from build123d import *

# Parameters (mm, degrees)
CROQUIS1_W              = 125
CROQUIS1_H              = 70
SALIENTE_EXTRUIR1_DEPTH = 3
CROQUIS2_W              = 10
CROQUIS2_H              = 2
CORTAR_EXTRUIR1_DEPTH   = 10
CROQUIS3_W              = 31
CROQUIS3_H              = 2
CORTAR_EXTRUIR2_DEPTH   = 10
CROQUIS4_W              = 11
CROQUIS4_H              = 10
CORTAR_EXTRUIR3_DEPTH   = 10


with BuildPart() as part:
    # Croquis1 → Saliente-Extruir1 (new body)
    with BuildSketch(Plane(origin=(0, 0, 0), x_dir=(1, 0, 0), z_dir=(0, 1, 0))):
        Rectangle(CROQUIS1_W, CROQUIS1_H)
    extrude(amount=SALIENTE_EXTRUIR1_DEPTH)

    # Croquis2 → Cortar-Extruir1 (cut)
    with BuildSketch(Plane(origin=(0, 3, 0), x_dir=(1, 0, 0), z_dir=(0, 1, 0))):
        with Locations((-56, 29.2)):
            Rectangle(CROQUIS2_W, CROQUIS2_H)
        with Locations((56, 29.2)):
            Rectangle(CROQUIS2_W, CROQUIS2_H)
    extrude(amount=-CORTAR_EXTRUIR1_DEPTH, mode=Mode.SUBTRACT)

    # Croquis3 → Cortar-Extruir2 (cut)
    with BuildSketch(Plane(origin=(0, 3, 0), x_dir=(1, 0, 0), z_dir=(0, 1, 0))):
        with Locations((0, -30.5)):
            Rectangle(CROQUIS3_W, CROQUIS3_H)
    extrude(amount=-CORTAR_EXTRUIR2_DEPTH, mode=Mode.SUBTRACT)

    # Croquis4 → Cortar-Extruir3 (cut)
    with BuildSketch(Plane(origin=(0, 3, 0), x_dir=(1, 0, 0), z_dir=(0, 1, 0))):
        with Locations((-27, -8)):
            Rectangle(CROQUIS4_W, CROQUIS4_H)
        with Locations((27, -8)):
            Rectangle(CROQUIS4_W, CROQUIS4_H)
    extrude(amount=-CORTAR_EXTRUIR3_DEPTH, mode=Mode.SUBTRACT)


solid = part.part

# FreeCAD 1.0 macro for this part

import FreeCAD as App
import Part
import Sketcher
Q = App.Units.Quantity

doc = App.newDocument("Part")
body = doc.addObject("PartDesign::Body", "Body")

sketch1 = body.newObject("Sketcher::SketchObject", "Sketch")
sketch1.AttachmentSupport = (doc.getObject("XZ_Plane"), [""])
sketch1.MapMode = "FlatFace"
sketch1.addGeometry([
    Part.LineSegment(App.Vector(-62, -35, 0), App.Vector(-62, 35, 0)),
    Part.LineSegment(App.Vector(-62, 35, 0), App.Vector(62, 35, 0)),
    Part.LineSegment(App.Vector(62, 35, 0), App.Vector(62, -35, 0)),
    Part.LineSegment(App.Vector(62, -35, 0), App.Vector(-62, -35, 0)),
], False)
sketch1.addConstraint([
    Sketcher.Constraint("Coincident", 0, 2, 1, 1),
    Sketcher.Constraint("Coincident", 1, 2, 2, 1),
    Sketcher.Constraint("Coincident", 2, 2, 3, 1),
    Sketcher.Constraint("Coincident", 3, 2, 0, 1),
    Sketcher.Constraint("Vertical", 0),
    Sketcher.Constraint("Horizontal", 1),
    Sketcher.Constraint("Vertical", 2),
    Sketcher.Constraint("Horizontal", 3),
    Sketcher.Constraint("Symmetric", 0, 2, 2, 2, -1, 1),
    Sketcher.Constraint("DistanceX", 1, 1, 1, 2, Q("125 mm")),
    Sketcher.Constraint("DistanceY", 0, 1, 0, 2, Q("70 mm")),
])
pad1 = body.newObject("PartDesign::Pad", "Pad")
pad1.Profile = sketch1
pad1.Length = 3
pad1.Reversed = True

sketch2 = body.newObject("Sketcher::SketchObject", "Sketch001")
sketch2.AttachmentSupport = (doc.getObject("XZ_Plane"), [""])
sketch2.MapMode = "FlatFace"
sketch2.AttachmentOffset = App.Placement(App.Vector(0, 0, -3), App.Rotation())
sketch2.addGeometry([
    Part.LineSegment(App.Vector(-61, -30.2, 0), App.Vector(-61, -28.2, 0)),
    Part.LineSegment(App.Vector(-61, -28.2, 0), App.Vector(-51, -28.2, 0)),
    Part.LineSegment(App.Vector(-51, -28.2, 0), App.Vector(-51, -30.2, 0)),
    Part.LineSegment(App.Vector(-51, -30.2, 0), App.Vector(-61, -30.2, 0)),
    Part.LineSegment(App.Vector(51, -30.2, 0), App.Vector(51, -28.2, 0)),
    Part.LineSegment(App.Vector(51, -28.2, 0), App.Vector(61, -28.2, 0)),
    Part.LineSegment(App.Vector(61, -28.2, 0), App.Vector(61, -30.2, 0)),
    Part.LineSegment(App.Vector(61, -30.2, 0), App.Vector(51, -30.2, 0)),
], False)
sketch2.addConstraint([
    Sketcher.Constraint("Coincident", 0, 2, 1, 1),
    Sketcher.Constraint("Coincident", 1, 2, 2, 1),
    Sketcher.Constraint("Coincident", 2, 2, 3, 1),
    Sketcher.Constraint("Coincident", 3, 2, 0, 1),
    Sketcher.Constraint("Coincident", 4, 2, 5, 1),
    Sketcher.Constraint("Coincident", 5, 2, 6, 1),
    Sketcher.Constraint("Coincident", 6, 2, 7, 1),
    Sketcher.Constraint("Coincident", 7, 2, 4, 1),
    Sketcher.Constraint("Vertical", 0),
    Sketcher.Constraint("Horizontal", 1),
    Sketcher.Constraint("Vertical", 2),
    Sketcher.Constraint("Horizontal", 3),
    Sketcher.Constraint("Vertical", 4),
    Sketcher.Constraint("Horizontal", 5),
    Sketcher.Constraint("Vertical", 6),
    Sketcher.Constraint("Horizontal", 7),
    Sketcher.Constraint("Symmetric", 1, 2, 4, 2, -2),
    Sketcher.Constraint("Symmetric", 3, 2, 6, 2, -2),
    Sketcher.Constraint("DistanceX", 1, 1, 1, 2, Q("10 mm")),
    Sketcher.Constraint("DistanceY", 0, 1, 0, 2, Q("2 mm")),
    Sketcher.Constraint("DistanceX", 0, 2, -1, 1, Q("61 mm")),
    Sketcher.Constraint("DistanceY", 0, 2, -1, 1, Q("28.2 mm")),
])
pocket1 = body.newObject("PartDesign::Pocket", "Pocket")
pocket1.Profile = sketch2
pocket1.Length = 10
pocket1.Reversed = True

sketch3 = body.newObject("Sketcher::SketchObject", "Sketch002")
sketch3.AttachmentSupport = (doc.getObject("XZ_Plane"), [""])
sketch3.MapMode = "FlatFace"
sketch3.AttachmentOffset = App.Placement(App.Vector(0, 0, -3), App.Rotation())
sketch3.addGeometry([
    Part.LineSegment(App.Vector(-15.5, 29.5, 0), App.Vector(-15.5, 31.5, 0)),
    Part.LineSegment(App.Vector(-15.5, 31.5, 0), App.Vector(15.5, 31.5, 0)),
    Part.LineSegment(App.Vector(15.5, 31.5, 0), App.Vector(15.5, 29.5, 0)),
    Part.LineSegment(App.Vector(15.5, 29.5, 0), App.Vector(-15.5, 29.5, 0)),
], False)
sketch3.addConstraint([
    Sketcher.Constraint("Coincident", 0, 2, 1, 1),
    Sketcher.Constraint("Coincident", 1, 2, 2, 1),
    Sketcher.Constraint("Coincident", 2, 2, 3, 1),
    Sketcher.Constraint("Coincident", 3, 2, 0, 1),
    Sketcher.Constraint("Vertical", 0),
    Sketcher.Constraint("Horizontal", 1),
    Sketcher.Constraint("Vertical", 2),
    Sketcher.Constraint("Horizontal", 3),
    Sketcher.Constraint("DistanceX", 1, 1, 1, 2, Q("31 mm")),
    Sketcher.Constraint("DistanceY", 0, 1, 0, 2, Q("2 mm")),
    Sketcher.Constraint("DistanceX", 0, 2, -1, 1, Q("15.5 mm")),
    Sketcher.Constraint("DistanceY", -1, 1, 0, 2, Q("31.5 mm")),
])
pocket2 = body.newObject("PartDesign::Pocket", "Pocket001")
pocket2.Profile = sketch3
pocket2.Length = 10
pocket2.Reversed = True

sketch4 = body.newObject("Sketcher::SketchObject", "Sketch003")
sketch4.AttachmentSupport = (doc.getObject("XZ_Plane"), [""])
sketch4.MapMode = "FlatFace"
sketch4.AttachmentOffset = App.Placement(App.Vector(0, 0, -3), App.Rotation())
sketch4.addGeometry([
    Part.LineSegment(App.Vector(-32, 3, 0), App.Vector(-32, 13, 0)),
    Part.LineSegment(App.Vector(-32, 13, 0), App.Vector(-22, 13, 0)),
    Part.LineSegment(App.Vector(-22, 13, 0), App.Vector(-22, 3, 0)),
    Part.LineSegment(App.Vector(-22, 3, 0), App.Vector(-32, 3, 0)),
    Part.LineSegment(App.Vector(22, 3, 0), App.Vector(22, 13, 0)),
    Part.LineSegment(App.Vector(22, 13, 0), App.Vector(32, 13, 0)),
    Part.LineSegment(App.Vector(32, 13, 0), App.Vector(32, 3, 0)),
    Part.LineSegment(App.Vector(32, 3, 0), App.Vector(22, 3, 0)),
], False)
sketch4.addConstraint([
    Sketcher.Constraint("Coincident", 0, 2, 1, 1),
    Sketcher.Constraint("Coincident", 1, 2, 2, 1),
    Sketcher.Constraint("Coincident", 2, 2, 3, 1),
    Sketcher.Constraint("Coincident", 3, 2, 0, 1),
    Sketcher.Constraint("Coincident", 4, 2, 5, 1),
    Sketcher.Constraint("Coincident", 5, 2, 6, 1),
    Sketcher.Constraint("Coincident", 6, 2, 7, 1),
    Sketcher.Constraint("Coincident", 7, 2, 4, 1),
    Sketcher.Constraint("Vertical", 0),
    Sketcher.Constraint("Horizontal", 1),
    Sketcher.Constraint("Vertical", 2),
    Sketcher.Constraint("Horizontal", 3),
    Sketcher.Constraint("Vertical", 4),
    Sketcher.Constraint("Horizontal", 5),
    Sketcher.Constraint("Vertical", 6),
    Sketcher.Constraint("Horizontal", 7),
    Sketcher.Constraint("Symmetric", 1, 2, 4, 2, -2),
    Sketcher.Constraint("Symmetric", 3, 2, 6, 2, -2),
    Sketcher.Constraint("DistanceX", 1, 1, 1, 2, Q("11 mm")),
    Sketcher.Constraint("DistanceY", 0, 1, 0, 2, Q("10 mm")),
    Sketcher.Constraint("DistanceY", -1, 1, 0, 2, Q("13 mm")),
    Sketcher.Constraint("DistanceX", 1, 2, 4, 2, Q("43 mm")),
])
pocket3 = body.newObject("PartDesign::Pocket", "Pocket002")
pocket3.Profile = sketch4
pocket3.Length = 10
pocket3.Reversed = True

doc.recompute()
